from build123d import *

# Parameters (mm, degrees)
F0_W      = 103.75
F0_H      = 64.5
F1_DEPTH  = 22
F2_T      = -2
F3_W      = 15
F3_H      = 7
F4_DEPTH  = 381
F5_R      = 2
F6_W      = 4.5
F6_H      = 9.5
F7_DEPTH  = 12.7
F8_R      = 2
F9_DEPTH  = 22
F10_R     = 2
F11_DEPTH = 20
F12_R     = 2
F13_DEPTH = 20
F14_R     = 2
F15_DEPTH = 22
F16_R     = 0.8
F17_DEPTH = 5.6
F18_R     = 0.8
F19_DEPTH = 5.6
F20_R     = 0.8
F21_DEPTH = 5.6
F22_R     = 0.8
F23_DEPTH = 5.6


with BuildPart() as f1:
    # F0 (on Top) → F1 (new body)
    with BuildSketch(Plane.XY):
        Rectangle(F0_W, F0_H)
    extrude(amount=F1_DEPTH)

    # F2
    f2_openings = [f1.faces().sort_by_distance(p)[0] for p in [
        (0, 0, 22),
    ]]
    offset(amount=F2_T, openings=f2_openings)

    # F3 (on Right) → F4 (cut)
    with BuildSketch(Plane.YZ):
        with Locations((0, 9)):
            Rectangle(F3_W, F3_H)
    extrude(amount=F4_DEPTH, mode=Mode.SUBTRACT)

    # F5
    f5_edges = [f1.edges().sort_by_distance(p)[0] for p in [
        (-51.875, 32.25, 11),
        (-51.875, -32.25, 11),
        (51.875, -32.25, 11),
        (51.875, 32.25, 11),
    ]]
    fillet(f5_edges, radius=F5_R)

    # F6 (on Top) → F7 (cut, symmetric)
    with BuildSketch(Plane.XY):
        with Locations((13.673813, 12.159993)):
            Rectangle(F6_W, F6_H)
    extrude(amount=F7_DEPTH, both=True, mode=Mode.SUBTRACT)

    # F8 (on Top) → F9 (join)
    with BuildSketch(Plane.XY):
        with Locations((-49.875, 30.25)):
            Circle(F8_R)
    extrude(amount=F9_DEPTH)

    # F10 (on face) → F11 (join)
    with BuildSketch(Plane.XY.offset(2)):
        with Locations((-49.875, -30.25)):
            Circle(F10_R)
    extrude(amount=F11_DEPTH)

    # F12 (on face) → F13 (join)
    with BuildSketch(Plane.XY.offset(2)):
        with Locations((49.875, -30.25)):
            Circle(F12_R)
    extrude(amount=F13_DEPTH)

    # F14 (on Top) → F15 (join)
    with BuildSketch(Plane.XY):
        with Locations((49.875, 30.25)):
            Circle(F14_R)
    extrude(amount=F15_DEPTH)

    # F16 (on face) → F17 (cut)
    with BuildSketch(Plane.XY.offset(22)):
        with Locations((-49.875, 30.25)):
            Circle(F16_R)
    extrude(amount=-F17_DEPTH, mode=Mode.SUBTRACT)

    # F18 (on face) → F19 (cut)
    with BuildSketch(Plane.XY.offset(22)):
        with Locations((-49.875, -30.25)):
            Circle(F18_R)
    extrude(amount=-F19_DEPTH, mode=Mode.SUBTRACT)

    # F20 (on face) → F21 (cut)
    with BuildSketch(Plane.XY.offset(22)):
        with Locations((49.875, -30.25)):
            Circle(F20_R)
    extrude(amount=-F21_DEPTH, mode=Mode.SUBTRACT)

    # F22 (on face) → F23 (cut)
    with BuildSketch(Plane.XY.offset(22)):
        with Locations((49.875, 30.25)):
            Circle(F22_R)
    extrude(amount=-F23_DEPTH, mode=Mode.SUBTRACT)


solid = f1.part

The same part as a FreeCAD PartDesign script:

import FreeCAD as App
import Part
import Sketcher
Q = App.Units.Quantity


def edges_at(feature, points):
    """Names of the edges that pass closest to the given points."""
    edges = feature.Shape.Edges
    near = lambda p: min(range(len(edges)), key=lambda i: edges[i].distToShape(Part.Vertex(*p))[0])
    return sorted({f"Edge{near(p) + 1}" for p in points})


def faces_at(feature, points):
    """Names of the faces that lie closest to the given points."""
    faces = feature.Shape.Faces
    near = lambda p: min(range(len(faces)), key=lambda i: faces[i].distToShape(Part.Vertex(*p))[0])
    return sorted({f"Face{near(p) + 1}" for p in points})


def add_polygon(sketch, points):
    """Adds a closed chain of lines whose ends are joined by coincident constraints."""
    first, n = sketch.GeometryCount, len(points)
    for a, b in zip(points, points[1:] + points[:1]):
        sketch.addGeometry(Part.LineSegment(App.Vector(*a, 0), App.Vector(*b, 0)), False)
    for i in range(n):
        sketch.addConstraint(Sketcher.Constraint("Coincident", first + i, 2, first + (i + 1) % n, 1))

doc = App.newDocument("Part")
body = doc.addObject("PartDesign::Body", "Body")

# Sketch on XY plane
sketch1 = body.newObject("Sketcher::SketchObject", "Sketch")
sketch1.AttachmentSupport = (doc.getObject("XY_Plane"), [""])
sketch1.MapMode = "FlatFace"
add_polygon(sketch1, [(-52, 32), (-52, -32), (52, -32), (52, 32)])  # lines 0-3
sketch1.addConstraint([
    Sketcher.Constraint("Vertical", 0),
    Sketcher.Constraint("Horizontal", 1),
    Sketcher.Constraint("Vertical", 2),
    Sketcher.Constraint("Horizontal", 3),
    Sketcher.Constraint("Symmetric", 0, 2, 2, 2, -1, 1),
    Sketcher.Constraint("DistanceY", 0, 2, 0, 1, Q("64.5 mm")),
    Sketcher.Constraint("DistanceX", 1, 1, 1, 2, Q("103.75 mm")),
])
pad1 = body.newObject("PartDesign::Pad", "Pad")
pad1.Profile = sketch1
pad1.Length = 22
doc.recompute()

thickness = body.newObject("PartDesign::Thickness", "Thickness")
thickness.Base = (pad1, faces_at(pad1, [(0, 0, 22)]))
thickness.Value = 2
thickness.Reversed = True
thickness.Join = "Arc"

# Sketch on YZ plane
sketch2 = body.newObject("Sketcher::SketchObject", "Sketch001")
sketch2.AttachmentSupport = (doc.getObject("YZ_Plane"), [""])
sketch2.MapMode = "FlatFace"
add_polygon(sketch2, [(-8, 12), (-8, 6), (8, 6), (8, 12)])  # lines 0-3
sketch2.addConstraint([
    Sketcher.Constraint("Vertical", 0),
    Sketcher.Constraint("Horizontal", 1),
    Sketcher.Constraint("Vertical", 2),
    Sketcher.Constraint("Horizontal", 3),
    Sketcher.Constraint("DistanceX", 1, 1, 1, 2, Q("15 mm")),
    Sketcher.Constraint("DistanceY", 0, 2, 0, 1, Q("7 mm")),
    Sketcher.Constraint("DistanceX", 0, 2, -1, 1, Q("7.5 mm")),
    Sketcher.Constraint("DistanceY", -1, 1, 0, 2, Q("5.5 mm")),
])
pocket1 = body.newObject("PartDesign::Pocket", "Pocket")
pocket1.Profile = sketch2
pocket1.Length = 381
pocket1.Reversed = True
doc.recompute()

fillet = body.newObject("PartDesign::Fillet", "Fillet")
fillet.Base = (pocket1, edges_at(pocket1, [
    (-51.875, 32.25, 11),
    (-51.875, -32.25, 11),
    (51.875, -32.25, 11),
    (51.875, 32.25, 11),
]))
fillet.Radius = 2

# Sketch on XY plane
sketch3 = body.newObject("Sketcher::SketchObject", "Sketch002")
sketch3.AttachmentSupport = (doc.getObject("XY_Plane"), [""])
sketch3.MapMode = "FlatFace"
add_polygon(sketch3, [(11.4, 16.9), (11.4, 7.4), (15.9, 7.4), (15.9, 16.9)])  # lines 0-3
sketch3.addConstraint([
    Sketcher.Constraint("Vertical", 0),
    Sketcher.Constraint("Horizontal", 1),
    Sketcher.Constraint("Vertical", 2),
    Sketcher.Constraint("Horizontal", 3),
    Sketcher.Constraint("DistanceX", 1, 1, 1, 2, Q("4.5 mm")),
    Sketcher.Constraint("DistanceY", 0, 2, 0, 1, Q("9.5 mm")),
    Sketcher.Constraint("DistanceX", -1, 1, 0, 2, Q("11.423813 mm")),
    Sketcher.Constraint("DistanceY", -1, 1, 0, 2, Q("7.409993 mm")),
])
pocket2 = body.newObject("PartDesign::Pocket", "Pocket001")
pocket2.Profile = sketch3
pocket2.Length = 25.4
pocket2.Midplane = True

# Sketch on XY plane
sketch4 = body.newObject("Sketcher::SketchObject", "Sketch003")
sketch4.AttachmentSupport = (doc.getObject("XY_Plane"), [""])
sketch4.MapMode = "FlatFace"
sketch4.addGeometry(Part.Circle(App.Vector(-49.9, 30.2, 0), App.Vector(0, 0, 1), 2), False)
sketch4.addConstraint([
    Sketcher.Constraint("Diameter", 0, Q("4 mm")),
    Sketcher.Constraint("DistanceY", -1, 1, 0, 3, Q("30.25 mm")),
    Sketcher.Constraint("DistanceX", 0, 3, -1, 1, Q("49.875 mm")),
])
pad2 = body.newObject("PartDesign::Pad", "Pad001")
pad2.Profile = sketch4
pad2.Length = 22

# Sketch on XY plane
sketch5 = body.newObject("Sketcher::SketchObject", "Sketch004")
sketch5.AttachmentSupport = (doc.getObject("XY_Plane"), [""])
sketch5.MapMode = "FlatFace"
sketch5.AttachmentOffset = App.Placement(App.Vector(0, 0, 2), App.Rotation())
sketch5.addGeometry(Part.Circle(App.Vector(-49.9, -30.2, 0), App.Vector(0, 0, 1), 2), False)
sketch5.addConstraint([
    Sketcher.Constraint("Diameter", 0, Q("4 mm")),
    Sketcher.Constraint("DistanceY", 0, 3, -1, 1, Q("30.25 mm")),
    Sketcher.Constraint("DistanceX", 0, 3, -1, 1, Q("49.875 mm")),
])
pad3 = body.newObject("PartDesign::Pad", "Pad002")
pad3.Profile = sketch5
pad3.Length = 20

# Sketch on XY plane
sketch6 = body.newObject("Sketcher::SketchObject", "Sketch005")
sketch6.AttachmentSupport = (doc.getObject("XY_Plane"), [""])
sketch6.MapMode = "FlatFace"
sketch6.AttachmentOffset = App.Placement(App.Vector(0, 0, 2), App.Rotation())
sketch6.addGeometry(Part.Circle(App.Vector(49.9, -30.2, 0), App.Vector(0, 0, 1), 2), False)
sketch6.addConstraint([
    Sketcher.Constraint("Diameter", 0, Q("4 mm")),
    Sketcher.Constraint("DistanceY", 0, 3, -1, 1, Q("30.25 mm")),
    Sketcher.Constraint("DistanceX", -1, 1, 0, 3, Q("49.875 mm")),
])
pad4 = body.newObject("PartDesign::Pad", "Pad003")
pad4.Profile = sketch6
pad4.Length = 20

# Sketch on XY plane
sketch7 = body.newObject("Sketcher::SketchObject", "Sketch006")
sketch7.AttachmentSupport = (doc.getObject("XY_Plane"), [""])
sketch7.MapMode = "FlatFace"
sketch7.addGeometry(Part.Circle(App.Vector(49.9, 30.2, 0), App.Vector(0, 0, 1), 2), False)
sketch7.addConstraint([
    Sketcher.Constraint("Diameter", 0, Q("4 mm")),
    Sketcher.Constraint("DistanceY", -1, 1, 0, 3, Q("30.25 mm")),
    Sketcher.Constraint("DistanceX", -1, 1, 0, 3, Q("49.875 mm")),
])
pad5 = body.newObject("PartDesign::Pad", "Pad004")
pad5.Profile = sketch7
pad5.Length = 22

# Sketch on XY plane
sketch8 = body.newObject("Sketcher::SketchObject", "Sketch007")
sketch8.AttachmentSupport = (doc.getObject("XY_Plane"), [""])
sketch8.MapMode = "FlatFace"
sketch8.AttachmentOffset = App.Placement(App.Vector(0, 0, 22), App.Rotation())
sketch8.addGeometry(Part.Circle(App.Vector(-49.9, 30.2, 0), App.Vector(0, 0, 1), 0.8), False)
sketch8.addConstraint([
    Sketcher.Constraint("Diameter", 0, Q("1.6 mm")),
    Sketcher.Constraint("DistanceY", -1, 1, 0, 3, Q("30.25 mm")),
    Sketcher.Constraint("DistanceX", 0, 3, -1, 1, Q("49.875 mm")),
])
pocket3 = body.newObject("PartDesign::Pocket", "Pocket002")
pocket3.Profile = sketch8
pocket3.Length = 5.6

# Sketch on XY plane
sketch9 = body.newObject("Sketcher::SketchObject", "Sketch008")
sketch9.AttachmentSupport = (doc.getObject("XY_Plane"), [""])
sketch9.MapMode = "FlatFace"
sketch9.AttachmentOffset = App.Placement(App.Vector(0, 0, 22), App.Rotation())
sketch9.addGeometry(Part.Circle(App.Vector(-49.9, -30.2, 0), App.Vector(0, 0, 1), 0.8), False)
sketch9.addConstraint([
    Sketcher.Constraint("Diameter", 0, Q("1.6 mm")),
    Sketcher.Constraint("DistanceY", 0, 3, -1, 1, Q("30.25 mm")),
    Sketcher.Constraint("DistanceX", 0, 3, -1, 1, Q("49.875 mm")),
])
pocket4 = body.newObject("PartDesign::Pocket", "Pocket003")
pocket4.Profile = sketch9
pocket4.Length = 5.6

# Sketch on XY plane
sketch10 = body.newObject("Sketcher::SketchObject", "Sketch009")
sketch10.AttachmentSupport = (doc.getObject("XY_Plane"), [""])
sketch10.MapMode = "FlatFace"
sketch10.AttachmentOffset = App.Placement(App.Vector(0, 0, 22), App.Rotation())
sketch10.addGeometry(Part.Circle(App.Vector(49.9, -30.2, 0), App.Vector(0, 0, 1), 0.8), False)
sketch10.addConstraint([
    Sketcher.Constraint("Diameter", 0, Q("1.6 mm")),
    Sketcher.Constraint("DistanceY", 0, 3, -1, 1, Q("30.25 mm")),
    Sketcher.Constraint("DistanceX", -1, 1, 0, 3, Q("49.875 mm")),
])
pocket5 = body.newObject("PartDesign::Pocket", "Pocket004")
pocket5.Profile = sketch10
pocket5.Length = 5.6

# Sketch on XY plane
sketch11 = body.newObject("Sketcher::SketchObject", "Sketch010")
sketch11.AttachmentSupport = (doc.getObject("XY_Plane"), [""])
sketch11.MapMode = "FlatFace"
sketch11.AttachmentOffset = App.Placement(App.Vector(0, 0, 22), App.Rotation())
sketch11.addGeometry(Part.Circle(App.Vector(49.9, 30.2, 0), App.Vector(0, 0, 1), 0.8), False)
sketch11.addConstraint([
    Sketcher.Constraint("Diameter", 0, Q("1.6 mm")),
    Sketcher.Constraint("DistanceY", -1, 1, 0, 3, Q("30.25 mm")),
    Sketcher.Constraint("DistanceX", -1, 1, 0, 3, Q("49.875 mm")),
])
pocket6 = body.newObject("PartDesign::Pocket", "Pocket005")
pocket6.Profile = sketch11
pocket6.Length = 5.6

doc.recompute()
